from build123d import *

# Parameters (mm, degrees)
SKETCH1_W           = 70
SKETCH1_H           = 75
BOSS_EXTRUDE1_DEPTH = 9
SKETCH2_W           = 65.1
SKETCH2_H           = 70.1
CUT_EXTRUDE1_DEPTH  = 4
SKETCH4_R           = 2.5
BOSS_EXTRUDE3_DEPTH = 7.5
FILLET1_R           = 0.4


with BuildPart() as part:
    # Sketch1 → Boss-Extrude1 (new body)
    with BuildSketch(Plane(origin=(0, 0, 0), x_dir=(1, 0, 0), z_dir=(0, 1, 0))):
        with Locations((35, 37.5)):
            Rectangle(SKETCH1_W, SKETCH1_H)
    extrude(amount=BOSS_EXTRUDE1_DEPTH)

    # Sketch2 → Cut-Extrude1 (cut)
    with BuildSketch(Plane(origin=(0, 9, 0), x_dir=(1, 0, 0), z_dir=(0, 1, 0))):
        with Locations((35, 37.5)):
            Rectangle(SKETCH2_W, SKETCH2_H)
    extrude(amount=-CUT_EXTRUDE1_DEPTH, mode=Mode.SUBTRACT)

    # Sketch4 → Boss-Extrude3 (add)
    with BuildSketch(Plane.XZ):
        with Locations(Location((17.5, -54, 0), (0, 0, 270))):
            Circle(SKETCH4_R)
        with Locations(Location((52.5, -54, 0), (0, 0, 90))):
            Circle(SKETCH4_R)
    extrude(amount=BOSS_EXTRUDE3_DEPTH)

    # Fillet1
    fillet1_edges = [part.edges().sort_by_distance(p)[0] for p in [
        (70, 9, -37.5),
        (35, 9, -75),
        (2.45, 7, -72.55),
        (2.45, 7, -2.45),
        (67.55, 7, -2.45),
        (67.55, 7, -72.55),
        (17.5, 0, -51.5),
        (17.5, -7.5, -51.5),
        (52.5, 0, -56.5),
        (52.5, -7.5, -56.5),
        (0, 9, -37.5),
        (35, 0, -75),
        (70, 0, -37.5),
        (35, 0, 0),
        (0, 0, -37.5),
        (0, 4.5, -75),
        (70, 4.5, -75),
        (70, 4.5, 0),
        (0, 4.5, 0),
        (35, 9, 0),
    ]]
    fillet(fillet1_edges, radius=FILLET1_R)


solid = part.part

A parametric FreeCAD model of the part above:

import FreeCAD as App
import Part
import Sketcher
from FreeCAD import Vector


def edges_at(feature, points):
    """Names of the edges that pass closest to the given points."""
    edges = feature.Shape.Edges
    near = lambda p: min(range(len(edges)), key=lambda i: edges[i].distToShape(Part.Vertex(*p))[0])
    return sorted({f"Edge{near(p) + 1}" for p in points})


def add_polygon(sketch, points):
    """Adds a closed chain of lines whose ends are joined by coincident constraints."""
    first, n = sketch.GeometryCount, len(points)
    for a, b in zip(points, points[1:] + points[:1]):
        sketch.addGeometry(Part.LineSegment(App.Vector(*a, 0), App.Vector(*b, 0)), False)
    for i in range(n):
        sketch.addConstraint(Sketcher.Constraint("Coincident", first + i, 2, first + (i + 1) % n, 1))

doc = App.newDocument("Part")
body = doc.addObject("PartDesign::Body", "Body")

# Sketch on XZ plane
sketch1 = body.newObject("Sketcher::SketchObject", "Sketch")
sketch1.AttachmentSupport = (doc.getObject("XZ_Plane"), [""])
sketch1.MapMode = "FlatFace"
add_polygon(sketch1, [(0, -75), (0, 0), (70, 0), (70, -75)])  # lines 0-3
sketch1.addConstraint(Sketcher.Constraint("Vertical", 0))
sketch1.addConstraint(Sketcher.Constraint("Horizontal", 1))
sketch1.addConstraint(Sketcher.Constraint("Vertical", 2))
sketch1.addConstraint(Sketcher.Constraint("Horizontal", 3))
sketch1.addConstraint(Sketcher.Constraint("Coincident", 0, 2, -1, 1))
sketch1.addConstraint(Sketcher.Constraint("DistanceX", 1, 1, 1, 2, 70.0))
sketch1.addConstraint(Sketcher.Constraint("DistanceY", 0, 1, 0, 2, 75.0))
pad1 = body.newObject("PartDesign::Pad", "Pad")
pad1.Profile = sketch1
pad1.Length = 9
pad1.Reversed = True

# Sketch on XZ plane
sketch2 = body.newObject("Sketcher::SketchObject", "Sketch001")
sketch2.AttachmentSupport = (doc.getObject("XZ_Plane"), [""])
sketch2.MapMode = "FlatFace"
sketch2.AttachmentOffset = App.Placement(Vector(0, 0, -9), App.Rotation())
add_polygon(sketch2, [(2.45, -72.55), (2.45, -2.45), (67.55, -2.45), (67.55, -72.55)])  # lines 0-3
sketch2.addConstraint(Sketcher.Constraint("Vertical", 0))
sketch2.addConstraint(Sketcher.Constraint("Horizontal", 1))
sketch2.addConstraint(Sketcher.Constraint("Vertical", 2))
sketch2.addConstraint(Sketcher.Constraint("Horizontal", 3))
sketch2.addConstraint(Sketcher.Constraint("DistanceX", 1, 1, 1, 2, 65.1))
sketch2.addConstraint(Sketcher.Constraint("DistanceY", 0, 1, 0, 2, 70.1))
sketch2.addConstraint(Sketcher.Constraint("DistanceX", -1, 1, 0, 2, 2.45))
sketch2.addConstraint(Sketcher.Constraint("DistanceY", 0, 2, -1, 1, 2.45))
pocket1 = body.newObject("PartDesign::Pocket", "Pocket")
pocket1.Profile = sketch2
pocket1.Length = 4
pocket1.Reversed = True

# Sketch on XZ plane
sketch3 = body.newObject("Sketcher::SketchObject", "Sketch002")
sketch3.AttachmentSupport = (doc.getObject("XZ_Plane"), [""])
sketch3.MapMode = "FlatFace"
sketch3.addGeometry(Part.Circle(Vector(17.5, -54, 0), Vector(0, 0, 1), 2.5), False)
sketch3.addGeometry(Part.Circle(Vector(52.5, -54, 0), Vector(0, 0, 1), 2.5), False)
sketch3.addConstraint(Sketcher.Constraint("Equal", 0, 1))
sketch3.addConstraint(Sketcher.Constraint("Horizontal", 0, 3, 1, 3))
sketch3.addConstraint(Sketcher.Constraint("Diameter", 0, 5.0))
sketch3.addConstraint(Sketcher.Constraint("DistanceY", 0, 3, -1, 1, 54.0))
sketch3.addConstraint(Sketcher.Constraint("DistanceX", 0, 3, 1, 3, 35.0))
sketch3.addConstraint(Sketcher.Constraint("DistanceX", -1, 1, 0, 3, 17.5))
pad2 = body.newObject("PartDesign::Pad", "Pad001")
pad2.Profile = sketch3
pad2.Length = 7.5
doc.recompute()

fillet = body.newObject("PartDesign::Fillet", "Fillet")
fillet.Base = (pad2, edges_at(pad2, [
    (70, 9, -37.5),
    (35, 9, -75),
    (2.45, 7, -72.55),
    (2.45, 7, -2.45),
    (67.55, 7, -2.45),
    (67.55, 7, -72.55),
    (17.5, 0, -51.5),
    (17.5, -7.5, -51.5),
    (52.5, 0, -56.5),
    (52.5, -7.5, -56.5),
    (0, 9, -37.5),
    (35, 0, -75),
    (70, 0, -37.5),
    (35, 0, 0),
    (0, 0, -37.5),
    (0, 4.5, -75),
    (70, 4.5, -75),
    (70, 4.5, 0),
    (0, 4.5, 0),
    (35, 9, 0),
]))
fillet.Radius = 0.4

doc.recompute()
